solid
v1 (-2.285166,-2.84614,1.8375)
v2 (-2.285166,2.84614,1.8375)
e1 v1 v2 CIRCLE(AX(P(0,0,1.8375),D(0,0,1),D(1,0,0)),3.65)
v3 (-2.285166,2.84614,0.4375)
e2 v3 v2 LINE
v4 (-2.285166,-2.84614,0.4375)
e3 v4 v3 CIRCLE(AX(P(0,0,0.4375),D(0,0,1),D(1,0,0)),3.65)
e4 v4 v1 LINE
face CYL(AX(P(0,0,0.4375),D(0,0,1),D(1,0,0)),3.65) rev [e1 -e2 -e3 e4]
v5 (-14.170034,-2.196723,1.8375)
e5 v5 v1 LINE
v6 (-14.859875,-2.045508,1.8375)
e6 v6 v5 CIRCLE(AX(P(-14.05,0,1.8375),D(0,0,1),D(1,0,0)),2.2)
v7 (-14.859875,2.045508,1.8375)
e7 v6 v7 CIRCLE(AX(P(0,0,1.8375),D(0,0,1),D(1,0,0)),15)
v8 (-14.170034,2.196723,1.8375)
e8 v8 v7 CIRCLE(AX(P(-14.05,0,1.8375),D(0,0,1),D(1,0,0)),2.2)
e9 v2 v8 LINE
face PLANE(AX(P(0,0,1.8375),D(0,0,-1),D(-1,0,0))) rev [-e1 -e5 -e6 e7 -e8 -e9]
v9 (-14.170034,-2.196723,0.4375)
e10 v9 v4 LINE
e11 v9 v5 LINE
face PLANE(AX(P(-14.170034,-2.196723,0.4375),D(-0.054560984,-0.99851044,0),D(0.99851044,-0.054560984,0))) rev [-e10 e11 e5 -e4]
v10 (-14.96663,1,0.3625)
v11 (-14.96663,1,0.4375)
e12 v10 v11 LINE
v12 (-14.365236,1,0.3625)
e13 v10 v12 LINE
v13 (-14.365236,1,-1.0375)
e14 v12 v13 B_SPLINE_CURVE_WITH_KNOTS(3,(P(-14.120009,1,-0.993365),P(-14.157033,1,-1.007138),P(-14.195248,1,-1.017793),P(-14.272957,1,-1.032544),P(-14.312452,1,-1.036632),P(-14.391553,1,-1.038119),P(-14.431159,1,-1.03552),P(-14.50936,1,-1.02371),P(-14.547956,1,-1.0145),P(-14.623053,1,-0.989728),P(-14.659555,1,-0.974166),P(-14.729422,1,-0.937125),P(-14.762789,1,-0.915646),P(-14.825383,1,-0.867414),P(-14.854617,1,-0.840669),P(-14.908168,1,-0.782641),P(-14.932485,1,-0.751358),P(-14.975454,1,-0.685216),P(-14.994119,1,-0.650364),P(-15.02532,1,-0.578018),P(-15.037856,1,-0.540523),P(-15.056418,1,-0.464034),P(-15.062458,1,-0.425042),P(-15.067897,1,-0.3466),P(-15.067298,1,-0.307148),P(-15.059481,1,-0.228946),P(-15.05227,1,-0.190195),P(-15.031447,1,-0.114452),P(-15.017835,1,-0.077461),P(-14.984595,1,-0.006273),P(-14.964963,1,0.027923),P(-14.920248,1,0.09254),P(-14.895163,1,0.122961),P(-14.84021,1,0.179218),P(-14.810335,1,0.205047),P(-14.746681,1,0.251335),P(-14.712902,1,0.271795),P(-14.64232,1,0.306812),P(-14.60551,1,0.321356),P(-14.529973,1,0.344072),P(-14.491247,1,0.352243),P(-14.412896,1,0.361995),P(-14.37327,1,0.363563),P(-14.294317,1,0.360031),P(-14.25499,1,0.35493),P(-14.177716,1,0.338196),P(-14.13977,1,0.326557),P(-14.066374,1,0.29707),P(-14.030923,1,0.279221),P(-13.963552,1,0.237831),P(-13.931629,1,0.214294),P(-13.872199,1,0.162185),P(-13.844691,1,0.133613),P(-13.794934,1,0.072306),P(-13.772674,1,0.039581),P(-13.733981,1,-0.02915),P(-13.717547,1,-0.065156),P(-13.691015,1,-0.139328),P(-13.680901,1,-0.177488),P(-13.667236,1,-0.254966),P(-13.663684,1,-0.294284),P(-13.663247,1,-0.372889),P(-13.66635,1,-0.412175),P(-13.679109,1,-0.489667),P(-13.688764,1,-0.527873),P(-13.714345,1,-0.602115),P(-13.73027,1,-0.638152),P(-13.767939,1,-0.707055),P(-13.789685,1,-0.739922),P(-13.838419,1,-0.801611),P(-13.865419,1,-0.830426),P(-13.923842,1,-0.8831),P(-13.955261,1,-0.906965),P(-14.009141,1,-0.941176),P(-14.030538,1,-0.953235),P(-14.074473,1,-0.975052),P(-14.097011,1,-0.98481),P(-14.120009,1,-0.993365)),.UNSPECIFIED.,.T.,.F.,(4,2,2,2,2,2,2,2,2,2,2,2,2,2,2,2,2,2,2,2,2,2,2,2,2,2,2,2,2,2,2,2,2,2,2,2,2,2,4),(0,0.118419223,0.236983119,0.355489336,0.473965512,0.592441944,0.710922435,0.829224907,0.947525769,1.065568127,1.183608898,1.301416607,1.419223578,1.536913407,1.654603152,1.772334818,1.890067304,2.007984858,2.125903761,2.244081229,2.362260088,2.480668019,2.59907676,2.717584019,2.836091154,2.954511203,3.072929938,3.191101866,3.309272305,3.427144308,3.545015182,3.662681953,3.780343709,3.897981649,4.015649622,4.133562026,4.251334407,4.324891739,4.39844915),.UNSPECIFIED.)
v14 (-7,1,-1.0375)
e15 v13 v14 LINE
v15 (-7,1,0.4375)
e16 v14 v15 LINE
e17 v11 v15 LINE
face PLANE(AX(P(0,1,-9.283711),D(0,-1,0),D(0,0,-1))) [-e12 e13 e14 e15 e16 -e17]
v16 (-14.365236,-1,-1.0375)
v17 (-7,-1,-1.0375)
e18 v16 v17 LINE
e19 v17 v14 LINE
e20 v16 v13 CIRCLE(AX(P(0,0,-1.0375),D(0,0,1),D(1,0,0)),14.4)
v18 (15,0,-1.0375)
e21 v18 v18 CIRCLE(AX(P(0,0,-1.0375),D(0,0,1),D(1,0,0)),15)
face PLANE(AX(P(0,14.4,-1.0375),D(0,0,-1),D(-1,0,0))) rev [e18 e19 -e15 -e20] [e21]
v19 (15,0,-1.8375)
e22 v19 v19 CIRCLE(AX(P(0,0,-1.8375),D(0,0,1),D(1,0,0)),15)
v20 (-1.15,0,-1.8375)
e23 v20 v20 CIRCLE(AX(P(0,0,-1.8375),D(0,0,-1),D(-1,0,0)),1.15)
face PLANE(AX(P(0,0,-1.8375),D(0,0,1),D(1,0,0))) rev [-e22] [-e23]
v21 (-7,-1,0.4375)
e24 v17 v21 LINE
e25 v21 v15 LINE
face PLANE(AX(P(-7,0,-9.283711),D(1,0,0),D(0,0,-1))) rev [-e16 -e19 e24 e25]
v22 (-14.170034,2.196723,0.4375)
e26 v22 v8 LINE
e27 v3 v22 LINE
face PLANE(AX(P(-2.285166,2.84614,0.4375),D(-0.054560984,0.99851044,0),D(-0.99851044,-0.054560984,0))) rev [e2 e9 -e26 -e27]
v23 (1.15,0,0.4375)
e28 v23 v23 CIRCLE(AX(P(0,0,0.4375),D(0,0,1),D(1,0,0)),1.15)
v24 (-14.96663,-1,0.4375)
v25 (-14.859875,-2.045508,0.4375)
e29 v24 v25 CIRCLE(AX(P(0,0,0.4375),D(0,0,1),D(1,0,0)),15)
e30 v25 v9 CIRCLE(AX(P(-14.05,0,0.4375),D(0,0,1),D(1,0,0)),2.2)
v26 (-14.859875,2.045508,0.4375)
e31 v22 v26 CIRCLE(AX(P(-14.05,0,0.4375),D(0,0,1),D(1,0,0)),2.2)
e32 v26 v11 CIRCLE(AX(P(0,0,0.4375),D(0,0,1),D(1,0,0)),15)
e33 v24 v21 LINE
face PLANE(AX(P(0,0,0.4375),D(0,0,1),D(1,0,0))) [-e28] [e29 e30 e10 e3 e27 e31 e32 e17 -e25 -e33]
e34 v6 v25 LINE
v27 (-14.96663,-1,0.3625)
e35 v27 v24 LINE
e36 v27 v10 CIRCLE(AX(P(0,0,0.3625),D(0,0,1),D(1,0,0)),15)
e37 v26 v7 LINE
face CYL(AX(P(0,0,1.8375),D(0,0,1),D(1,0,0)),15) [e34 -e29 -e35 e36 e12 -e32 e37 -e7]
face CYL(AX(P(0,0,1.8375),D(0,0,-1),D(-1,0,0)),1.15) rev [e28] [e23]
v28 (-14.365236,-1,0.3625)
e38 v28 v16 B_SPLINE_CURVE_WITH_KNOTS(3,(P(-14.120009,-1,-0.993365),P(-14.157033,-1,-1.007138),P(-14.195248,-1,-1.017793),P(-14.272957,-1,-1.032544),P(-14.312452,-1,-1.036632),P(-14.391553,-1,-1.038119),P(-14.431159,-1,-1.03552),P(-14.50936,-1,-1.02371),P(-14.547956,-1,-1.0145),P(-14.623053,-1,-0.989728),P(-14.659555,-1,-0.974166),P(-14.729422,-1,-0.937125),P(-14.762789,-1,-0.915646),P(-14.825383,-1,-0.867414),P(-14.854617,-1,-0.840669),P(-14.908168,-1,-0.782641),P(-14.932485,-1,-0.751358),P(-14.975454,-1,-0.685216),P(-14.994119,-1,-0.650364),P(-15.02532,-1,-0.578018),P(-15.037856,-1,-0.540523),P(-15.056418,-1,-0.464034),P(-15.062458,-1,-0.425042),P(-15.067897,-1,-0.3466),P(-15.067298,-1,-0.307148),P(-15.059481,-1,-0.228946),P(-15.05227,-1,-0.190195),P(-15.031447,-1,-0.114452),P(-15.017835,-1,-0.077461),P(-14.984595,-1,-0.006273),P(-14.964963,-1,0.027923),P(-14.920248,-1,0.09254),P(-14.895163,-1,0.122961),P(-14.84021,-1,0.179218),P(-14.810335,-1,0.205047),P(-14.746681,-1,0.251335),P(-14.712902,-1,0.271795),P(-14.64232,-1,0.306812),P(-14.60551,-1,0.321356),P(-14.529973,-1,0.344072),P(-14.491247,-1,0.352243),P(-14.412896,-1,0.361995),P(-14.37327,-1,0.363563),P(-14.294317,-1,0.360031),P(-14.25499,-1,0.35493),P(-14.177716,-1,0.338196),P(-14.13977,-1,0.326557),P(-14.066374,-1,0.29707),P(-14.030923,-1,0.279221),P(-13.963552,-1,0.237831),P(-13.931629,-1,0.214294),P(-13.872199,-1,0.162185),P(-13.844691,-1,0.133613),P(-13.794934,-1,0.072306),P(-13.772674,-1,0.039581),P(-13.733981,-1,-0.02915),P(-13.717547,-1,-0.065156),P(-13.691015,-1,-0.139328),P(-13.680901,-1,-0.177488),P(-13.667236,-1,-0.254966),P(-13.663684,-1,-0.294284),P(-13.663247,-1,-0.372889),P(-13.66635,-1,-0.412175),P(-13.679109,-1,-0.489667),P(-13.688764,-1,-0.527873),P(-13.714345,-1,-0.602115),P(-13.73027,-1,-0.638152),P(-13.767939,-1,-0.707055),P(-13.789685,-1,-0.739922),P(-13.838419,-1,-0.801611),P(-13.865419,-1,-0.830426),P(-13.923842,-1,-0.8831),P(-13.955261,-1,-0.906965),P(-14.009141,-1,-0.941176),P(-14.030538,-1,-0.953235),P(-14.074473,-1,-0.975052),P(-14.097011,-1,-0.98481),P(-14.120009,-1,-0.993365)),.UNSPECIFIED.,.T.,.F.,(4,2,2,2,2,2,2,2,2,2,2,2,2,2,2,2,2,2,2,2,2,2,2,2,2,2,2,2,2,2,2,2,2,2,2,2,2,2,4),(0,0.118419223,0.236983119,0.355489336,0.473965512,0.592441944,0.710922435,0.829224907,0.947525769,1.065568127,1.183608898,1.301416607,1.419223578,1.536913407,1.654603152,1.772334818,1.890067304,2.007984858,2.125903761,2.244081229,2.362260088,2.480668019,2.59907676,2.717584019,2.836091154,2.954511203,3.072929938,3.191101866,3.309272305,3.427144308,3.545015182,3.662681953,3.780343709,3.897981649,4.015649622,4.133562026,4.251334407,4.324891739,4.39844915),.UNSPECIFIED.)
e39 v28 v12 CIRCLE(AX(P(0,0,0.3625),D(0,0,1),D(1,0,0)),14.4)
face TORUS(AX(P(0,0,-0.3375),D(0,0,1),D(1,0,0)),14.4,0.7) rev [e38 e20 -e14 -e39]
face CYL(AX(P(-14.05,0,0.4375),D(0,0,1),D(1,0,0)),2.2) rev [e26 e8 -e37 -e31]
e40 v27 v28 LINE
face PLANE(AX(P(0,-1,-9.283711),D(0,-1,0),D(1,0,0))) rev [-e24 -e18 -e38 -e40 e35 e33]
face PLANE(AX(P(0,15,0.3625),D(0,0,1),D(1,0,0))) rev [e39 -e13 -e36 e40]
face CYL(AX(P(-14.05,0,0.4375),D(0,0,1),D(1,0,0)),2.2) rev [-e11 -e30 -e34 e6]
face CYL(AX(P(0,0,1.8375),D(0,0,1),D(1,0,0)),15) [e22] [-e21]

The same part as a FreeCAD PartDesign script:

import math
import FreeCAD as App
import Part
import Sketcher
Q = App.Units.Quantity

doc = App.newDocument("Part")
body = doc.addObject("PartDesign::Body", "Body")

# Sketch on YZ plane
sketch1 = body.newObject("Sketcher::SketchObject", "Sketch")
sketch1.AttachmentSupport = (doc.getObject("YZ_Plane"), [""])
sketch1.MapMode = "FlatFace"
sketch1.addGeometry([
    Part.LineSegment(App.Vector(0, 1.8, 0), App.Vector(0, -1.8, 0)),  # 0
    Part.LineSegment(App.Vector(0, -1.8, 0), App.Vector(15, -1.8, 0)),  # 1
    Part.LineSegment(App.Vector(15, -1.8, 0), App.Vector(15, -1, 0)),  # 2
    Part.LineSegment(App.Vector(15, -1, 0), App.Vector(14.4, -1, 0)),  # 3
    Part.ArcOfCircle(Part.Circle(App.Vector(14.4, -0.3, 0), App.Vector(0, 0, 1), 0.7), math.radians(90), math.radians(270)),  # 4
    Part.LineSegment(App.Vector(14.4, 0.4, 0), App.Vector(15, 0.4, 0)),  # 5
    Part.LineSegment(App.Vector(15, 0.4, 0), App.Vector(15, 1.8, 0)),  # 6
    Part.LineSegment(App.Vector(15, 1.8, 0), App.Vector(0, 1.8, 0)),  # 7
], False)
sketch1.addConstraint([
    Sketcher.Constraint("Coincident", 0, 2, 1, 1),
    Sketcher.Constraint("Coincident", 1, 2, 2, 1),
    Sketcher.Constraint("Coincident", 2, 2, 3, 1),
    Sketcher.Constraint("Tangent", 3, 2, 4, 2),
    Sketcher.Constraint("Tangent", 4, 1, 5, 1),
    Sketcher.Constraint("Coincident", 5, 2, 6, 1),
    Sketcher.Constraint("Coincident", 6, 2, 7, 1),
    Sketcher.Constraint("Coincident", 7, 2, 0, 1),
    Sketcher.Constraint("Vertical", 0),
    Sketcher.Constraint("Horizontal", 1),
    Sketcher.Constraint("Vertical", 2),
    Sketcher.Constraint("Horizontal", 3),
    Sketcher.Constraint("Horizontal", 5),
    Sketcher.Constraint("Vertical", 6),
    Sketcher.Constraint("Horizontal", 7),
    Sketcher.Constraint("Symmetric", 0, 2, 7, 2, -1, 1),
    Sketcher.Constraint("Vertical", 2, 2, 5, 2),
    Sketcher.Constraint("Radius", 4, Q("0.7 mm")),
    Sketcher.Constraint("DistanceX", 1, 1, 1, 2, Q("15 mm")),
    Sketcher.Constraint("DistanceX", 3, 2, 3, 1, Q("0.6 mm")),
    Sketcher.Constraint("DistanceY", 2, 1, 2, 2, Q("0.8 mm")),
    Sketcher.Constraint("DistanceY", 0, 2, 0, 1, Q("3.675 mm")),
])
revolution = body.newObject("PartDesign::Revolution", "Revolution")
revolution.Profile = sketch1
revolution.ReferenceAxis = (sketch1, ["V_Axis"])
revolution.Angle = 360

# Sketch on XY plane
sketch2 = body.newObject("Sketcher::SketchObject", "Sketch001")
sketch2.AttachmentSupport = (doc.getObject("XY_Plane"), [""])
sketch2.MapMode = "FlatFace"
sketch2.AttachmentOffset = App.Placement(App.Vector(0, 0, 1.8375), App.Rotation())
sketch2.addGeometry([
    Part.LineSegment(App.Vector(-2.3, 2.8, 0), App.Vector(-14.2, 2.2, 0)),
    Part.ArcOfCircle(Part.Circle(App.Vector(-14.1, 0, 0), App.Vector(0, 0, 1), 2.2), math.radians(93), math.radians(267)),
    Part.LineSegment(App.Vector(-14.2, -2.2, 0), App.Vector(-2.3, -2.8, 0)),
    Part.ArcOfCircle(Part.Circle(App.Vector(0, 0, 0), App.Vector(0, 0, 1), 3.6), math.radians(-129), math.radians(129)),
], False)
sketch2.addConstraint([
    Sketcher.Constraint("Tangent", 0, 2, 1, 1),
    Sketcher.Constraint("Tangent", 1, 2, 2, 1),
    Sketcher.Constraint("Coincident", 2, 2, 3, 1),
    Sketcher.Constraint("Coincident", 3, 2, 0, 1),
    Sketcher.Constraint("Coincident", 3, 3, -1, 1),
    Sketcher.Constraint("Symmetric", 0, 2, 1, 2, -1),
    Sketcher.Constraint("Radius", 1, Q("2.2 mm")),
    Sketcher.Constraint("Radius", 3, Q("3.65 mm")),
    Sketcher.Constraint("DistanceX", 1, 3, -1, 1, Q("14.05 mm")),
    Sketcher.Constraint("DistanceY", 2, 2, -1, 1, Q("2.84614 mm")),
])
pocket1 = body.newObject("PartDesign::Pocket", "Pocket")
pocket1.Profile = sketch2
pocket1.Length = 1.4

# Sketch on XY plane
sketch3 = body.newObject("Sketcher::SketchObject", "Sketch002")
sketch3.AttachmentSupport = (doc.getObject("XY_Plane"), [""])
sketch3.MapMode = "FlatFace"
sketch3.AttachmentOffset = App.Placement(App.Vector(0, 0, -1.8375), App.Rotation())
sketch3.addGeometry(Part.Circle(App.Vector(0, 0, 0), App.Vector(0, 0, 1), 1.1), False)
sketch3.addConstraint([
    Sketcher.Constraint("Coincident", 0, 3, -1, 1),
    Sketcher.Constraint("Diameter", 0, Q("2.3 mm")),
])
pocket2 = body.newObject("PartDesign::Pocket", "Pocket001")
pocket2.Profile = sketch3
pocket2.Type = "ThroughAll"
pocket2.Reversed = True

# Sketch on XY plane
sketch4 = body.newObject("Sketcher::SketchObject", "Sketch003")
sketch4.AttachmentSupport = (doc.getObject("XY_Plane"), [""])
sketch4.MapMode = "FlatFace"
sketch4.AttachmentOffset = App.Placement(App.Vector(0, 0, 0.4375), App.Rotation())
sketch4.addGeometry([
    Part.LineSegment(App.Vector(-15, -1, 0), App.Vector(-7, -1, 0)),  # 0
    Part.LineSegment(App.Vector(-7, -1, 0), App.Vector(-7, 1, 0)),  # 1
    Part.LineSegment(App.Vector(-7, 1, 0), App.Vector(-15, 1, 0)),  # 2
    Part.ArcOfCircle(Part.Circle(App.Vector(0, 0, 0), App.Vector(0, 0, 1), 15), math.radians(176.18), math.radians(180)),  # 3
    Part.ArcOfCircle(Part.Circle(App.Vector(0, 0, 0), App.Vector(0, 0, 1), 15), math.radians(-180), math.radians(-176.18)),  # 4
], False)
sketch4.addConstraint([
    Sketcher.Constraint("Coincident", 0, 2, 1, 1),
    Sketcher.Constraint("Coincident", 1, 2, 2, 1),
    Sketcher.Constraint("Coincident", 2, 2, 3, 1),
    Sketcher.Constraint("Tangent", 3, 2, 4, 1),
    Sketcher.Constraint("Coincident", 4, 2, 0, 1),
    Sketcher.Constraint("Horizontal", 0),
    Sketcher.Constraint("Vertical", 1),
    Sketcher.Constraint("Horizontal", 2),
    Sketcher.Constraint("Coincident", 3, 3, -1, 1),
    Sketcher.Constraint("Equal", 3, 4),
    Sketcher.Constraint("PointOnObject", 3, 2, -1),
    Sketcher.Constraint("Vertical", 2, 2, 4, 2),
    Sketcher.Constraint("Radius", 3, Q("15.000001 mm")),
    Sketcher.Constraint("DistanceY", 1, 1, 1, 2, Q("2 mm")),
    Sketcher.Constraint("DistanceX", 0, 2, -1, 1, Q("7 mm")),
])
pocket3 = body.newObject("PartDesign::Pocket", "Pocket002")
pocket3.Profile = sketch4
pocket3.Length = 1.475

doc.recompute()
